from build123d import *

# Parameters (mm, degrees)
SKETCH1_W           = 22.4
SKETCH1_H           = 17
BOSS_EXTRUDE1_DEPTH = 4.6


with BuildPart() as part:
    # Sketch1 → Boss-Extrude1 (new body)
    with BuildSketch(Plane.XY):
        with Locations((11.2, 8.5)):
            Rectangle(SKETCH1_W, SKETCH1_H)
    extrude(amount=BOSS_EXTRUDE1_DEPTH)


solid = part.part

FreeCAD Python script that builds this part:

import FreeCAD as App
import Part
import Sketcher
from FreeCAD import Vector
Q = App.Units.Quantity

doc = App.newDocument("Part")
params = doc.addObject("Spreadsheet::Sheet", "Params")
for row, (alias, value) in enumerate([
    ("sketch1_height", "17 mm"),
    ("sketch1_width", "22.4 mm"),
    ("pad1_length", "4.6 mm"),
], start=1):
    params.set(f"A{row}", alias)
    params.set(f"B{row}", "=" + value)
    params.setAlias(f"B{row}", alias)

body = doc.addObject("PartDesign::Body", "Body")

sketch1 = body.newObject("Sketcher::SketchObject", "Sketch")
sketch1.AttachmentSupport = (doc.getObject("XY_Plane"), [""])
sketch1.MapMode = "FlatFace"
sketch1.addGeometry([
    Part.LineSegment(Vector(0, 17, 0), Vector(0, 0, 0)),
    Part.LineSegment(Vector(0, 0, 0), Vector(22, 0, 0)),
    Part.LineSegment(Vector(22, 0, 0), Vector(22, 17, 0)),
    Part.LineSegment(Vector(22, 17, 0), Vector(0, 17, 0)),
], False)
sketch1.addConstraint([
    Sketcher.Constraint("Coincident", 0, 2, 1, 1),
    Sketcher.Constraint("Coincident", 1, 2, 2, 1),
    Sketcher.Constraint("Coincident", 2, 2, 3, 1),
    Sketcher.Constraint("Coincident", 3, 2, 0, 1),
    Sketcher.Constraint("Vertical", 0),
    Sketcher.Constraint("Horizontal", 1),
    Sketcher.Constraint("Vertical", 2),
    Sketcher.Constraint("Horizontal", 3),
    Sketcher.Constraint("Coincident", 0, 2, -1, 1),
    Sketcher.Constraint("DistanceY", 0, 2, 0, 1, Q("17 mm")),
    Sketcher.Constraint("DistanceX", 1, 1, 1, 2, Q("22.4 mm")),
])
sketch1.setExpression("Constraints[9]", "Params.sketch1_height")
sketch1.setExpression("Constraints[10]", "Params.sketch1_width")
pad1 = body.newObject("PartDesign::Pad", "Pad")
pad1.Profile = sketch1
pad1.setExpression("Length", "Params.pad1_length")

doc.recompute()
